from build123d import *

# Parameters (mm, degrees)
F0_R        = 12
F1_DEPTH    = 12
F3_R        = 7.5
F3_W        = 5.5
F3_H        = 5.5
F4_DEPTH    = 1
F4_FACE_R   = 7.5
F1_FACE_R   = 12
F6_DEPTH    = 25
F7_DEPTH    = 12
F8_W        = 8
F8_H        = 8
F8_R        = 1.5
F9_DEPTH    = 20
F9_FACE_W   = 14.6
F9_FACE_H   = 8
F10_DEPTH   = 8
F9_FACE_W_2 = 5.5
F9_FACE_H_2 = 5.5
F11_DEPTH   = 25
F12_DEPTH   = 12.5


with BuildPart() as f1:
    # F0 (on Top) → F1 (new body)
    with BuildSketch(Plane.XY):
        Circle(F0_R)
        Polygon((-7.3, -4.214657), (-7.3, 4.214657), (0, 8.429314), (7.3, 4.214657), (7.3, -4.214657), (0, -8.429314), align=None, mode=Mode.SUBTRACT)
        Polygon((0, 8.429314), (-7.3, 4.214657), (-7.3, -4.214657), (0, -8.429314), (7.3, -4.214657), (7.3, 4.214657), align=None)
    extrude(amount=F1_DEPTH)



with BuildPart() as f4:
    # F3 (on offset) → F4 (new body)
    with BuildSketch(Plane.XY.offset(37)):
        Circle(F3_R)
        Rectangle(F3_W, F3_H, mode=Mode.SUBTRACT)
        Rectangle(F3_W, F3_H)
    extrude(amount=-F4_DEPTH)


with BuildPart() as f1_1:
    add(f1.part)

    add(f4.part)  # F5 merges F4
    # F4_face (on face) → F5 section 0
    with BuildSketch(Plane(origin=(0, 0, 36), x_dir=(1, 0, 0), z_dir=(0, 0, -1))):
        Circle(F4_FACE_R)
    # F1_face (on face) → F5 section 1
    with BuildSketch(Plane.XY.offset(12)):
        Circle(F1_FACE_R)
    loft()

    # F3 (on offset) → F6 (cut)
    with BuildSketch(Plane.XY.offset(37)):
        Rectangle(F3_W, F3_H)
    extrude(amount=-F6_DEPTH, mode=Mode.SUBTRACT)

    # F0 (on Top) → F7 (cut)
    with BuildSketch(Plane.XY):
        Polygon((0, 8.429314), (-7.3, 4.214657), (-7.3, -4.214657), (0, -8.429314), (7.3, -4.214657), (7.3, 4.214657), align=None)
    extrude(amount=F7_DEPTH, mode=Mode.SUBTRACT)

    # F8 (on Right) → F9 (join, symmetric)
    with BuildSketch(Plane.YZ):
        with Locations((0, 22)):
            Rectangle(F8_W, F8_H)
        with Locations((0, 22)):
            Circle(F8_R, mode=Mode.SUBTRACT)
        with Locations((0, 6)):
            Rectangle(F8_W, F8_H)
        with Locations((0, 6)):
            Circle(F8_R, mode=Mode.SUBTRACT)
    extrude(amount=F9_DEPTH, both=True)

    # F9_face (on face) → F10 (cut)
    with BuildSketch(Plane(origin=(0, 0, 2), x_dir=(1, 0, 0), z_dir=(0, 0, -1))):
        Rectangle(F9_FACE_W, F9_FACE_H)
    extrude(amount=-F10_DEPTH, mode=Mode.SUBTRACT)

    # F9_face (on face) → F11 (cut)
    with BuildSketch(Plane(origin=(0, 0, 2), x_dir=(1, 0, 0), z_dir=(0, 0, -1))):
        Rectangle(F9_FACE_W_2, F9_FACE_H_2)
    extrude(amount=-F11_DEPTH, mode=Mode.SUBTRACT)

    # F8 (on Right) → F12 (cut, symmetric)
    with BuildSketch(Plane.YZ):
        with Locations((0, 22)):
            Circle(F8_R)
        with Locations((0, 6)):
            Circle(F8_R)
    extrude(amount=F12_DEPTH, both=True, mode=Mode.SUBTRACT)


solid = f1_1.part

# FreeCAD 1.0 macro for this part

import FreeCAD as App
import Part
import Sketcher
from FreeCAD import Vector
Q = App.Units.Quantity


def add_polygon(sketch, points):
    """Adds a closed chain of lines whose ends are joined by coincident constraints."""
    first, n = sketch.GeometryCount, len(points)
    for a, b in zip(points, points[1:] + points[:1]):
        sketch.addGeometry(Part.LineSegment(App.Vector(*a, 0), App.Vector(*b, 0)), False)
    for i in range(n):
        sketch.addConstraint(Sketcher.Constraint("Coincident", first + i, 2, first + (i + 1) % n, 1))

doc = App.newDocument("Part")
body = doc.addObject("PartDesign::Body", "Body")

# Sketch on XY plane
sketch1 = doc.addObject("Sketcher::SketchObject", "Sketch")
body.addObject(sketch1)
sketch1.AttachmentSupport = (doc.XY_Plane, [""])
sketch1.MapMode = "FlatFace"
sketch1.addGeometry(Part.Circle(Vector(0, 0, 0), Vector(0, 0, 1), 12), False)
sketch1.addConstraint(Sketcher.Constraint("Coincident", 0, 3, -1, 1))
sketch1.addConstraint(Sketcher.Constraint("Diameter", 0, 24.0))
pad1 = doc.addObject("PartDesign::Pad", "Pad")
body.addObject(pad1)
pad1.Profile = sketch1
pad1.Length = 12
body2 = doc.addObject("PartDesign::Body", "Body001")

# Sketch on XY plane
sketch2 = doc.addObject("Sketcher::SketchObject", "Sketch001")
body2.addObject(sketch2)
sketch2.AttachmentSupport = (doc.getObject("XY_Plane001"), [""])
sketch2.MapMode = "FlatFace"
sketch2.AttachmentOffset = App.Placement(Vector(0, 0, 37), App.Rotation())
sketch2.addGeometry(Part.Circle(Vector(0, 0, 0), Vector(0, 0, 1), 8), False)
sketch2.addConstraint(Sketcher.Constraint("Coincident", 0, 3, -1, 1))
sketch2.addConstraint(Sketcher.Constraint("Diameter", 0, 15.0))
pad2 = doc.addObject("PartDesign::Pad", "Pad001")
body2.addObject(pad2)
pad2.Profile = sketch2
pad2.Length = 1
pad2.Reversed = True
body.AllowCompound = True
doc.recompute()

boolean = doc.addObject("PartDesign::Boolean", "Boolean")
body.addObject(boolean)
boolean.Type = "Fuse"
boolean.addObjects([body2])

# Sketch on XY plane
sketch3 = doc.addObject("Sketcher::SketchObject", "Sketch002")
body.addObject(sketch3)
sketch3.AttachmentSupport = (doc.XY_Plane, [""])
sketch3.MapMode = "FlatFace"
sketch3.AttachmentOffset = App.Placement(Vector(0, 0, 36), App.Rotation())
sketch3.addGeometry(Part.Circle(Vector(0, 0, 0), Vector(0, 0, 1), 8), False)
sketch3.addConstraint(Sketcher.Constraint("Coincident", 0, 3, -1, 1))
sketch3.addConstraint(Sketcher.Constraint("Diameter", 0, 15.0))

# Sketch on XY plane
sketch4 = doc.addObject("Sketcher::SketchObject", "Sketch003")
body.addObject(sketch4)
sketch4.AttachmentSupport = (doc.XY_Plane, [""])
sketch4.MapMode = "FlatFace"
sketch4.AttachmentOffset = App.Placement(Vector(0, 0, 12), App.Rotation())
sketch4.addGeometry(Part.Circle(Vector(0, 0, 0), Vector(0, 0, 1), 12), False)
sketch4.addConstraint(Sketcher.Constraint("Coincident", 0, 3, -1, 1))
sketch4.addConstraint(Sketcher.Constraint("Diameter", 0, 24.0))

additiveloft = doc.addObject("PartDesign::AdditiveLoft", "AdditiveLoft")
body.addObject(additiveloft)
additiveloft.Profile = sketch3
additiveloft.Sections = [sketch4]

# Sketch on XY plane
sketch5 = doc.addObject("Sketcher::SketchObject", "Sketch004")
body.addObject(sketch5)
sketch5.AttachmentSupport = (doc.XY_Plane, [""])
sketch5.MapMode = "FlatFace"
sketch5.AttachmentOffset = App.Placement(Vector(0, 0, 37), App.Rotation())
add_polygon(sketch5, [(-3, 3), (-3, -3), (3, -3), (3, 3)])  # lines 0-3
sketch5.addConstraint(Sketcher.Constraint("Vertical", 0))
sketch5.addConstraint(Sketcher.Constraint("Horizontal", 1))
sketch5.addConstraint(Sketcher.Constraint("Vertical", 2))
sketch5.addConstraint(Sketcher.Constraint("Horizontal", 3))
sketch5.addConstraint(Sketcher.Constraint("Symmetric", 0, 2, 2, 2, -1, 1))
sketch5.addConstraint(Sketcher.Constraint("Equal", 3, 0))
sketch5.addConstraint(Sketcher.Constraint("DistanceX", 1, 1, 1, 2, 5.5))
pocket1 = doc.addObject("PartDesign::Pocket", "Pocket")
body.addObject(pocket1)
pocket1.Profile = sketch5
pocket1.Length = 25

# Sketch on XY plane
sketch6 = doc.addObject("Sketcher::SketchObject", "Sketch005")
body.addObject(sketch6)
sketch6.AttachmentSupport = (doc.XY_Plane, [""])
sketch6.MapMode = "FlatFace"
add_polygon(sketch6, [(0, 8), (-7, 4), (-7, -4), (0, -8), (7, -4), (7, 4)])  # lines 0-5
sketch6.addConstraint(Sketcher.Constraint("Vertical", 1))
sketch6.addConstraint(Sketcher.Constraint("Vertical", 4))
sketch6.addConstraint(Sketcher.Constraint("Symmetric", 0, 2, 3, 2, -1, 1))
sketch6.addConstraint(Sketcher.Constraint("Symmetric", 2, 2, 5, 2, -1, 1))
sketch6.addConstraint(Sketcher.Constraint("PointOnObject", 2, 2, -2))
sketch6.addConstraint(Sketcher.Constraint("Parallel", 2, 5))
sketch6.addConstraint(Sketcher.Constraint("Horizontal", 1, 2, 3, 2))
sketch6.addConstraint(Sketcher.Constraint("Angle", 0, Q("-150 deg")))
sketch6.addConstraint(Sketcher.Constraint("DistanceX", 0, 2, -1, 1, 7.3))
sketch6.addConstraint(Sketcher.Constraint("DistanceY", 1, 2, 1, 1, 8.429314))
pocket2 = doc.addObject("PartDesign::Pocket", "Pocket001")
body.addObject(pocket2)
pocket2.Profile = sketch6
pocket2.Length = 12
pocket2.Reversed = True

# Sketch on YZ plane
sketch7 = doc.addObject("Sketcher::SketchObject", "Sketch006")
body.addObject(sketch7)
sketch7.AttachmentSupport = (doc.YZ_Plane, [""])
sketch7.MapMode = "FlatFace"
add_polygon(sketch7, [(-4, 26), (-4, 18), (4, 18), (4, 26)])  # lines 0-3
sketch7.addGeometry(Part.Circle(Vector(0, 22, 0), Vector(0, 0, 1), 1.5), False)  # 4
add_polygon(sketch7, [(-4, 10), (-4, 2), (4, 2), (4, 10)])  # lines 5-8
sketch7.addGeometry(Part.Circle(Vector(0, 6, 0), Vector(0, 0, 1), 1.5), False)  # 9
sketch7.addConstraint(Sketcher.Constraint("Vertical", 0))
sketch7.addConstraint(Sketcher.Constraint("Horizontal", 1))
sketch7.addConstraint(Sketcher.Constraint("Vertical", 2))
sketch7.addConstraint(Sketcher.Constraint("Horizontal", 3))
sketch7.addConstraint(Sketcher.Constraint("Vertical", 5))
sketch7.addConstraint(Sketcher.Constraint("Horizontal", 6))
sketch7.addConstraint(Sketcher.Constraint("Vertical", 7))
sketch7.addConstraint(Sketcher.Constraint("Horizontal", 8))
sketch7.addConstraint(Sketcher.Constraint("Equal", 4, 9))
sketch7.addConstraint(Sketcher.Constraint("PointOnObject", 4, 3, -2))
sketch7.addConstraint(Sketcher.Constraint("PointOnObject", 9, 3, -2))
sketch7.addConstraint(Sketcher.Constraint("Vertical", 3, 2, 5, 2))
sketch7.addConstraint(Sketcher.Constraint("Vertical", 2, 2, 6, 2))
sketch7.addConstraint(Sketcher.Constraint("Equal", 8, 0))
sketch7.addConstraint(Sketcher.Constraint("Equal", 2, 5))
sketch7.addConstraint(Sketcher.Constraint("Diameter", 4, 3.0))
sketch7.addConstraint(Sketcher.Constraint("DistanceX", 1, 1, 1, 2, 8.0))
sketch7.addConstraint(Sketcher.Constraint("DistanceY", -1, 1, 4, 3, 22.0))
sketch7.addConstraint(Sketcher.Constraint("DistanceY", -1, 1, 9, 3, 6.0))
sketch7.addConstraint(Sketcher.Constraint("DistanceX", 0, 2, -1, 1, 4.0))
sketch7.addConstraint(Sketcher.Constraint("DistanceY", -1, 1, 0, 2, 18.0))
sketch7.addConstraint(Sketcher.Constraint("DistanceY", -1, 1, 5, 2, 2.0))
pad3 = doc.addObject("PartDesign::Pad", "Pad002")
body.addObject(pad3)
pad3.Profile = sketch7
pad3.Length = 40
pad3.Midplane = True

# Sketch on XY plane
sketch8 = doc.addObject("Sketcher::SketchObject", "Sketch007")
body.addObject(sketch8)
sketch8.AttachmentSupport = (doc.XY_Plane, [""])
sketch8.MapMode = "FlatFace"
sketch8.AttachmentOffset = App.Placement(Vector(0, 0, 2), App.Rotation())
add_polygon(sketch8, [(-7, -4), (-7, 4), (7, 4), (7, -4)])  # lines 0-3
sketch8.addConstraint(Sketcher.Constraint("Vertical", 0))
sketch8.addConstraint(Sketcher.Constraint("Horizontal", 1))
sketch8.addConstraint(Sketcher.Constraint("Vertical", 2))
sketch8.addConstraint(Sketcher.Constraint("Horizontal", 3))
sketch8.addConstraint(Sketcher.Constraint("Symmetric", 0, 2, 2, 2, -1, 1))
sketch8.addConstraint(Sketcher.Constraint("DistanceY", 0, 1, 0, 2, 8.0))
sketch8.addConstraint(Sketcher.Constraint("DistanceX", 1, 1, 1, 2, 14.6))
pocket3 = doc.addObject("PartDesign::Pocket", "Pocket002")
body.addObject(pocket3)
pocket3.Profile = sketch8
pocket3.Length = 8
pocket3.Reversed = True

# Sketch on XY plane
sketch9 = doc.addObject("Sketcher::SketchObject", "Sketch008")
body.addObject(sketch9)
sketch9.AttachmentSupport = (doc.XY_Plane, [""])
sketch9.MapMode = "FlatFace"
sketch9.AttachmentOffset = App.Placement(Vector(0, 0, 2), App.Rotation())
add_polygon(sketch9, [(-3, -3), (-3, 3), (3, 3), (3, -3)])  # lines 0-3
sketch9.addConstraint(Sketcher.Constraint("Vertical", 0))
sketch9.addConstraint(Sketcher.Constraint("Horizontal", 1))
sketch9.addConstraint(Sketcher.Constraint("Vertical", 2))
sketch9.addConstraint(Sketcher.Constraint("Horizontal", 3))
sketch9.addConstraint(Sketcher.Constraint("Symmetric", 0, 2, 2, 2, -1, 1))
sketch9.addConstraint(Sketcher.Constraint("Equal", 3, 0))
sketch9.addConstraint(Sketcher.Constraint("DistanceX", 1, 1, 1, 2, 5.5))
pocket4 = doc.addObject("PartDesign::Pocket", "Pocket003")
body.addObject(pocket4)
pocket4.Profile = sketch9
pocket4.Length = 25
pocket4.Reversed = True

# Sketch on YZ plane
sketch10 = doc.addObject("Sketcher::SketchObject", "Sketch009")
body.addObject(sketch10)
sketch10.AttachmentSupport = (doc.YZ_Plane, [""])
sketch10.MapMode = "FlatFace"
sketch10.addGeometry(Part.Circle(Vector(0, 22, 0), Vector(0, 0, 1), 1.5), False)
sketch10.addGeometry(Part.Circle(Vector(0, 6, 0), Vector(0, 0, 1), 1.5), False)
sketch10.addConstraint(Sketcher.Constraint("Equal", 0, 1))
sketch10.addConstraint(Sketcher.Constraint("PointOnObject", 0, 3, -2))
sketch10.addConstraint(Sketcher.Constraint("PointOnObject", 1, 3, -2))
sketch10.addConstraint(Sketcher.Constraint("Diameter", 0, 3.0))
sketch10.addConstraint(Sketcher.Constraint("DistanceY", -1, 1, 0, 3, 22.0))
sketch10.addConstraint(Sketcher.Constraint("DistanceY", -1, 1, 1, 3, 6.0))
pocket5 = doc.addObject("PartDesign::Pocket", "Pocket004")
body.addObject(pocket5)
pocket5.Profile = sketch10
pocket5.Length = 25
pocket5.Midplane = True

doc.recompute()
